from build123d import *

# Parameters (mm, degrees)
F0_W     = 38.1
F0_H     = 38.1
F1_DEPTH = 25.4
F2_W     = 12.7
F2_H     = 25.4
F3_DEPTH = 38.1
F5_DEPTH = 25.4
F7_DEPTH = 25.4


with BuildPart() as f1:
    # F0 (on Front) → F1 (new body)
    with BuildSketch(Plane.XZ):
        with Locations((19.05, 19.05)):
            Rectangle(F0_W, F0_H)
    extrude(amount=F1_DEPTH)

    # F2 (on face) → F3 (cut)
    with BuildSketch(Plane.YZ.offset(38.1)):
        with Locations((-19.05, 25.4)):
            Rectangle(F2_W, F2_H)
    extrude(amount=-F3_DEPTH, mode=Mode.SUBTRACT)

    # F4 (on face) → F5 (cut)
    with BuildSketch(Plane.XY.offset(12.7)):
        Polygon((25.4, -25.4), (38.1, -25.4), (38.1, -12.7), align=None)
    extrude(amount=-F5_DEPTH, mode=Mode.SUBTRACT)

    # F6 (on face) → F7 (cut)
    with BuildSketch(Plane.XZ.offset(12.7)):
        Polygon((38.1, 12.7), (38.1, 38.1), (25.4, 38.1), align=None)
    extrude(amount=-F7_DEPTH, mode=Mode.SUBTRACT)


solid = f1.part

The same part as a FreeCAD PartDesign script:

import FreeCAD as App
import Part
import Sketcher
Q = App.Units.Quantity


def add_polygon(sketch, points):
    """Adds a closed chain of lines whose ends are joined by coincident constraints."""
    first, n = sketch.GeometryCount, len(points)
    for a, b in zip(points, points[1:] + points[:1]):
        sketch.addGeometry(Part.LineSegment(App.Vector(*a, 0), App.Vector(*b, 0)), False)
    for i in range(n):
        sketch.addConstraint(Sketcher.Constraint("Coincident", first + i, 2, first + (i + 1) % n, 1))

doc = App.newDocument("Part")
params = doc.addObject("Spreadsheet::Sheet", "Params")
for row, (alias, value) in enumerate([
    ("sketch1_width", "1.5 in"),
    ("pad1_length", "1 in"),
    ("sketch2_height", "1 in"),
    ("sketch2_width", "0.5 in"),
    ("pocket1_length", "1.5 in"),
    ("sketch3_width", "0.5 in"),
    ("pocket2_length", "1 in"),
    ("sketch4_height", "1 in"),
    ("sketch4_width", "0.5 in"),
    ("pocket3_length", "1 in"),
], start=1):
    params.set(f"A{row}", alias)
    params.set(f"B{row}", "=" + value)
    params.setAlias(f"B{row}", alias)

body = doc.addObject("PartDesign::Body", "Body")

# Sketch on XZ plane
sketch1 = body.newObject("Sketcher::SketchObject", "Sketch")
sketch1.AttachmentSupport = (doc.getObject("XZ_Plane"), [""])
sketch1.MapMode = "FlatFace"
add_polygon(sketch1, [(0, 38), (0, 0), (38, 0), (38, 38)])  # lines 0-3
sketch1.addConstraint(Sketcher.Constraint("Vertical", 0))
sketch1.addConstraint(Sketcher.Constraint("Horizontal", 1))
sketch1.addConstraint(Sketcher.Constraint("Vertical", 2))
sketch1.addConstraint(Sketcher.Constraint("Horizontal", 3))
sketch1.addConstraint(Sketcher.Constraint("Coincident", 0, 2, -1, 1))
sketch1.addConstraint(Sketcher.Constraint("Equal", 3, 0))
sketch1.addConstraint(Sketcher.Constraint("DistanceX", 1, 1, 1, 2, Q("1.5 in")))
sketch1.setExpression("Constraints[10]", "Params.sketch1_width")
pad1 = body.newObject("PartDesign::Pad", "Pad")
pad1.Profile = sketch1
pad1.setExpression("Length", "Params.pad1_length")

# Sketch on YZ plane
sketch2 = body.newObject("Sketcher::SketchObject", "Sketch001")
sketch2.AttachmentSupport = (doc.getObject("YZ_Plane"), [""])
sketch2.MapMode = "FlatFace"
sketch2.AttachmentOffset = App.Placement(App.Vector(0, 0, 1.5 * 25.4), App.Rotation())
add_polygon(sketch2, [(-25, 38), (-25, 13), (-13, 13), (-13, 38)])  # lines 0-3
sketch2.addConstraint(Sketcher.Constraint("Vertical", 0))
sketch2.addConstraint(Sketcher.Constraint("Horizontal", 1))
sketch2.addConstraint(Sketcher.Constraint("Vertical", 2))
sketch2.addConstraint(Sketcher.Constraint("Horizontal", 3))
sketch2.addConstraint(Sketcher.Constraint("DistanceY", 0, 2, 0, 1, Q("1 in")))
sketch2.addConstraint(Sketcher.Constraint("DistanceX", 1, 1, 1, 2, Q("0.5 in")))
sketch2.addConstraint(Sketcher.Constraint("DistanceX", 0, 2, -1, 1, Q("1 in")))
sketch2.addConstraint(Sketcher.Constraint("DistanceY", -1, 1, 0, 2, Q("0.5 in")))
sketch2.setExpression("Constraints[8]", "Params.sketch2_height")
sketch2.setExpression("Constraints[9]", "Params.sketch2_width")
pocket1 = body.newObject("PartDesign::Pocket", "Pocket")
pocket1.Profile = sketch2
pocket1.setExpression("Length", "Params.pocket1_length")

# Sketch on XY plane
sketch3 = body.newObject("Sketcher::SketchObject", "Sketch002")
sketch3.AttachmentSupport = (doc.getObject("XY_Plane"), [""])
sketch3.MapMode = "FlatFace"
sketch3.AttachmentOffset = App.Placement(App.Vector(0, 0, 0.5 * 25.4), App.Rotation())
add_polygon(sketch3, [(25, -25), (38, -25), (38, -13)])  # lines 0-2
sketch3.addConstraint(Sketcher.Constraint("Horizontal", 0))
sketch3.addConstraint(Sketcher.Constraint("Vertical", 1))
sketch3.addConstraint(Sketcher.Constraint("Equal", 0, 1))
sketch3.addConstraint(Sketcher.Constraint("DistanceX", 0, 1, 0, 2, Q("0.5 in")))
sketch3.addConstraint(Sketcher.Constraint("DistanceY", 0, 2, -1, 1, Q("1 in")))
sketch3.addConstraint(Sketcher.Constraint("DistanceX", -1, 1, 2, 2, Q("1 in")))
sketch3.setExpression("Constraints[6]", "Params.sketch3_width")
pocket2 = body.newObject("PartDesign::Pocket", "Pocket001")
pocket2.Profile = sketch3
pocket2.setExpression("Length", "Params.pocket2_length")

# Sketch on XZ plane
sketch4 = body.newObject("Sketcher::SketchObject", "Sketch003")
sketch4.AttachmentSupport = (doc.getObject("XZ_Plane"), [""])
sketch4.MapMode = "FlatFace"
sketch4.AttachmentOffset = App.Placement(App.Vector(0, 0, 0.5 * 25.4), App.Rotation())
add_polygon(sketch4, [(38, 13), (38, 38), (25, 38)])  # lines 0-2
sketch4.addConstraint(Sketcher.Constraint("Vertical", 0))
sketch4.addConstraint(Sketcher.Constraint("Horizontal", 1))
sketch4.addConstraint(Sketcher.Constraint("DistanceY", 0, 1, 0, 2, Q("1 in")))
sketch4.addConstraint(Sketcher.Constraint("DistanceX", 1, 2, 1, 1, Q("0.5 in")))
sketch4.addConstraint(Sketcher.Constraint("DistanceX", -1, 1, 1, 2, Q("1 in")))
sketch4.addConstraint(Sketcher.Constraint("DistanceY", -1, 1, 0, 2, Q("1.5 in")))
sketch4.setExpression("Constraints[5]", "Params.sketch4_height")
sketch4.setExpression("Constraints[6]", "Params.sketch4_width")
pocket3 = body.newObject("PartDesign::Pocket", "Pocket002")
pocket3.Profile = sketch4
pocket3.setExpression("Length", "Params.pocket3_length")

doc.recompute()
